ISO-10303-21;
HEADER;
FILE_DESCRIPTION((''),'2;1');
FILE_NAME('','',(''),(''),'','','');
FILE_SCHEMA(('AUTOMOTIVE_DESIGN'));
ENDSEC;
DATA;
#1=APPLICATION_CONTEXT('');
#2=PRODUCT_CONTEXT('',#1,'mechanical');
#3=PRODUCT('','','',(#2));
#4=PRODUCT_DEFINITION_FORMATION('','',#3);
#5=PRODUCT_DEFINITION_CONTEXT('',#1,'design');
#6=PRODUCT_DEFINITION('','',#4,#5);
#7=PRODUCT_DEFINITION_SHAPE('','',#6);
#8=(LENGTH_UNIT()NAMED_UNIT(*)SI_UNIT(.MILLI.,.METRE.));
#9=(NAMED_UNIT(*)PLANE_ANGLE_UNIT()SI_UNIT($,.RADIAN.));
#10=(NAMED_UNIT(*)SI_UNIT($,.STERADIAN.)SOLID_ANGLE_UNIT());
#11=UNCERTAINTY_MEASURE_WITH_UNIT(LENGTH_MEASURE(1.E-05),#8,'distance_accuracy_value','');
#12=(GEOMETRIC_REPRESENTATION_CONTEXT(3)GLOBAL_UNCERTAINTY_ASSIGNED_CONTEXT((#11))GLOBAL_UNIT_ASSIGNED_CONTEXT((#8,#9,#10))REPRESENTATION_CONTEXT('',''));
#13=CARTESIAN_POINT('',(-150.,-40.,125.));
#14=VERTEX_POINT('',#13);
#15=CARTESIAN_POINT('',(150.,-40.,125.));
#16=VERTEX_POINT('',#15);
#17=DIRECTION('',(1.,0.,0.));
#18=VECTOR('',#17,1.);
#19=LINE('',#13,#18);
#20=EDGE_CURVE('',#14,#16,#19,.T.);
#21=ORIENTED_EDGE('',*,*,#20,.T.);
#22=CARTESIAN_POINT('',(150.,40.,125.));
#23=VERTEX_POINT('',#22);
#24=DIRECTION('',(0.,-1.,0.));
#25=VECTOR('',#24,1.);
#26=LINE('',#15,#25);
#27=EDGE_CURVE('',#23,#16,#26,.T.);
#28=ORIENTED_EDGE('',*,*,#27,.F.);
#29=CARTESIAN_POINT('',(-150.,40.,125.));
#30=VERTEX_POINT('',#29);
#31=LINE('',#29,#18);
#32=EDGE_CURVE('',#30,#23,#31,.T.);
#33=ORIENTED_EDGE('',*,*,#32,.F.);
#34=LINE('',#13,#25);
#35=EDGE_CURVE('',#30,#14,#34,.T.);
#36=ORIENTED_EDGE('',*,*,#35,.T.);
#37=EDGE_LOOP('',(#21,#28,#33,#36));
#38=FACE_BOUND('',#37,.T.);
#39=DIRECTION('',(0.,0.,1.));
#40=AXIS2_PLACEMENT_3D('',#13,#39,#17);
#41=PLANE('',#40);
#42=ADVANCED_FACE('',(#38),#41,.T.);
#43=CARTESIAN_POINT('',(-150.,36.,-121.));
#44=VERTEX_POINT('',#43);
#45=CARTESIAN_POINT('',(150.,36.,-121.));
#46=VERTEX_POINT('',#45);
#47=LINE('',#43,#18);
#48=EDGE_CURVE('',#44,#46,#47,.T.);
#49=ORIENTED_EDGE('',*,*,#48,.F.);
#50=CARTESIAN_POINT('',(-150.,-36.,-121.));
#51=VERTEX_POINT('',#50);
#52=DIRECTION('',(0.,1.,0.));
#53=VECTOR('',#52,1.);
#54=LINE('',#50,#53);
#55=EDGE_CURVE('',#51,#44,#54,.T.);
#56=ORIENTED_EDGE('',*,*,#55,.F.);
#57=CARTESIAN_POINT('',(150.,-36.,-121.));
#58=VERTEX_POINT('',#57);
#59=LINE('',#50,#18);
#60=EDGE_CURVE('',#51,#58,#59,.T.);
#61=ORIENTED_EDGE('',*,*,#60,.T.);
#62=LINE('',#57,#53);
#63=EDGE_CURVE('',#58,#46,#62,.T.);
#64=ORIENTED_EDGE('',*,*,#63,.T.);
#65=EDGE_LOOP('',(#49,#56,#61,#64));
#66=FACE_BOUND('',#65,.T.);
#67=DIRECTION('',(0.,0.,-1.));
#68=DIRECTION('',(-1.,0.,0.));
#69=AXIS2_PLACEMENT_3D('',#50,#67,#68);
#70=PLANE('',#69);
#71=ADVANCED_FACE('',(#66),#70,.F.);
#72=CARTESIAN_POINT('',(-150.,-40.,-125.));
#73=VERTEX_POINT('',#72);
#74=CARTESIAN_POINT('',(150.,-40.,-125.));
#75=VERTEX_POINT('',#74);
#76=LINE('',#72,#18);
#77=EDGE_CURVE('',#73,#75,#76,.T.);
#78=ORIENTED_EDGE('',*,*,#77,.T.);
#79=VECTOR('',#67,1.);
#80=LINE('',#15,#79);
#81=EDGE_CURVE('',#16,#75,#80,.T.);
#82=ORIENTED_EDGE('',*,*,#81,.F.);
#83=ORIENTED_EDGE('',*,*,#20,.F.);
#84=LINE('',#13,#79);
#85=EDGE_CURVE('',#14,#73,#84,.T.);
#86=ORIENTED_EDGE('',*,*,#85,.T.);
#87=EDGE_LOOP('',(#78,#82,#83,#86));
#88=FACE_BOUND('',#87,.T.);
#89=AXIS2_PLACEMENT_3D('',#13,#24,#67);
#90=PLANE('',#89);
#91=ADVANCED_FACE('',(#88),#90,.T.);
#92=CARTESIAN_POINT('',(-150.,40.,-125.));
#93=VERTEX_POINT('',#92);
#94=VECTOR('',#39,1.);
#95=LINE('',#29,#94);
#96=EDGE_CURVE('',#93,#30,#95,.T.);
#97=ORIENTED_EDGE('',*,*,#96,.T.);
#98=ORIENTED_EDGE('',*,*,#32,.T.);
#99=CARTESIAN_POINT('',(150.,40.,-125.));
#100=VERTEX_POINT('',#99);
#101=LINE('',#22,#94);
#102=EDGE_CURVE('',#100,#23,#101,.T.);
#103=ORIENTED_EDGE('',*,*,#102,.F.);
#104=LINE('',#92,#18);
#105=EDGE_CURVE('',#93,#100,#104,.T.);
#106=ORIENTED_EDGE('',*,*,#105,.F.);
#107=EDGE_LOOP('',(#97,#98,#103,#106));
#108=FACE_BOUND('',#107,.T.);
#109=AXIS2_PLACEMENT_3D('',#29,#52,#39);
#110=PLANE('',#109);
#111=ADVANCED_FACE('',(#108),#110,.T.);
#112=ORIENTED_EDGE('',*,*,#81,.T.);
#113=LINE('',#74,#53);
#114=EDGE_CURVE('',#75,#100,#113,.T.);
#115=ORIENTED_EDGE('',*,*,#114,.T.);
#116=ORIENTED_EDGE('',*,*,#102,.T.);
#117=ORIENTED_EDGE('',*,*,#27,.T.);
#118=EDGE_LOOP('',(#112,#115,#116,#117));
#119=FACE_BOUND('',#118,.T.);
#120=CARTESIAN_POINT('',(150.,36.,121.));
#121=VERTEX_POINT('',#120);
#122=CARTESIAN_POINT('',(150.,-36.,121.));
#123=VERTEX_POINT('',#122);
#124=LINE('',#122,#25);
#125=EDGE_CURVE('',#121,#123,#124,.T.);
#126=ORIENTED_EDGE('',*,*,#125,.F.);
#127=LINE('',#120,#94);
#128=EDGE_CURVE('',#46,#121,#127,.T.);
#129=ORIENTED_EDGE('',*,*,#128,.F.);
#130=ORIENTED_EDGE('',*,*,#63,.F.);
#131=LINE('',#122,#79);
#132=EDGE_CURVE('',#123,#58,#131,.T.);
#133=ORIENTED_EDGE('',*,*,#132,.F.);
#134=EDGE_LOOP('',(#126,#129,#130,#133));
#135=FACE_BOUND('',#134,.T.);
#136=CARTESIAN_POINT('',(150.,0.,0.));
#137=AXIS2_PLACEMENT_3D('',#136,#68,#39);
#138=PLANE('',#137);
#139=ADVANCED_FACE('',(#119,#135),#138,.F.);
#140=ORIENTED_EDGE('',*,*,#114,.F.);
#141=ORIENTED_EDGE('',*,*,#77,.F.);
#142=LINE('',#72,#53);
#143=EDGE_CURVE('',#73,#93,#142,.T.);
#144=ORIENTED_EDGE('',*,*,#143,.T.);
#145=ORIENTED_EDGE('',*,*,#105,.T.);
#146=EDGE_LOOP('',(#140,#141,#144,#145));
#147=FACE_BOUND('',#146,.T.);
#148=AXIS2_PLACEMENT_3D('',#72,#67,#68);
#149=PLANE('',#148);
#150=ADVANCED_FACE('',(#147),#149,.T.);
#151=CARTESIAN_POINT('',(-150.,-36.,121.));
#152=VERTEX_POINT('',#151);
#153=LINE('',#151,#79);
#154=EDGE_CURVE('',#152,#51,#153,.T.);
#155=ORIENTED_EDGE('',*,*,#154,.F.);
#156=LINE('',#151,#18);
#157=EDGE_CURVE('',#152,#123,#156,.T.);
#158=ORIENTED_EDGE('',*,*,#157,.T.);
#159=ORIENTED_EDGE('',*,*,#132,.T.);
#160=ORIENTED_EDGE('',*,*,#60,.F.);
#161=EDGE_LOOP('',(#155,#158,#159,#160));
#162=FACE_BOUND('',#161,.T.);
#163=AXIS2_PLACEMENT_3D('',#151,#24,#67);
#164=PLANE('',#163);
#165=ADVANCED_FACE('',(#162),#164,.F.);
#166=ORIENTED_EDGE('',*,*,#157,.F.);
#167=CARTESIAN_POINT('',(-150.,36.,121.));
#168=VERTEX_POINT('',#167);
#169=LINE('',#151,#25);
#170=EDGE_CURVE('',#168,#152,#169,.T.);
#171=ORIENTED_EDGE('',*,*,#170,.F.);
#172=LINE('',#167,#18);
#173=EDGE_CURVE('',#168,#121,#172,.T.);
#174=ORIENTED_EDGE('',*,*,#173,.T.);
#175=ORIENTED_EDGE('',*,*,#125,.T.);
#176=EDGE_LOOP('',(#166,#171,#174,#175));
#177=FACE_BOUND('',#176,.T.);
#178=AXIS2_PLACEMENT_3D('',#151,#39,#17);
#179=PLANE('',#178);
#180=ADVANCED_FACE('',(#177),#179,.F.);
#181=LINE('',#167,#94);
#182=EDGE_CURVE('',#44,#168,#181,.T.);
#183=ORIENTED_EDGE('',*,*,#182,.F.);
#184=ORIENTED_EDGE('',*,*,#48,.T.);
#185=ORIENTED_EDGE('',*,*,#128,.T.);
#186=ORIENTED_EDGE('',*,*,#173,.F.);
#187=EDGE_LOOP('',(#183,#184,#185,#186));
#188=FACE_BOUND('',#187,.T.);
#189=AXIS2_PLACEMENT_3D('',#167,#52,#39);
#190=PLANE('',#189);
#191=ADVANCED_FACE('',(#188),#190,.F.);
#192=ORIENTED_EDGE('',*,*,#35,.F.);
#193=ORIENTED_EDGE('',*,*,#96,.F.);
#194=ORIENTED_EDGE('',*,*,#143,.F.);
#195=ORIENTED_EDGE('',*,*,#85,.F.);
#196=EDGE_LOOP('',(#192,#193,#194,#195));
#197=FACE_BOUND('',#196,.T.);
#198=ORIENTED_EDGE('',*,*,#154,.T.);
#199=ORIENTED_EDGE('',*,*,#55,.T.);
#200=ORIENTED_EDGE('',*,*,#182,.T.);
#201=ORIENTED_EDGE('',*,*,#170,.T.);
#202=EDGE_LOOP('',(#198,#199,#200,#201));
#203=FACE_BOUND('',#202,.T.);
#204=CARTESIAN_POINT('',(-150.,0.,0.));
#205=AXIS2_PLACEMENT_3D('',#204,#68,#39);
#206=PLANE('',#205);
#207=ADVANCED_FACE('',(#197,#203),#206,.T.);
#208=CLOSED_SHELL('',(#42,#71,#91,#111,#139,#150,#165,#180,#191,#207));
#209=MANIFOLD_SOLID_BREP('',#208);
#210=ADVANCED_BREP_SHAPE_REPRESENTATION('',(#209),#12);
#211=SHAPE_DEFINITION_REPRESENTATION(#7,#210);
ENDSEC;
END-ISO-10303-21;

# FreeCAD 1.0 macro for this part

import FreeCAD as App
import Part
import Sketcher

V = App.Vector


def add_polygon(sketch, points):
    """Adds a closed chain of lines whose ends are joined by coincident constraints."""
    first, n = sketch.GeometryCount, len(points)
    for a, b in zip(points, points[1:] + points[:1]):
        sketch.addGeometry(Part.LineSegment(App.Vector(*a, 0), App.Vector(*b, 0)), False)
    for i in range(n):
        sketch.addConstraint(Sketcher.Constraint("Coincident", first + i, 2, first + (i + 1) % n, 1))

doc = App.newDocument("Part")
body = doc.addObject("PartDesign::Body", "Body")

sketch1 = body.newObject("Sketcher::SketchObject", "Sketch")
sketch1.AttachmentSupport = (doc.getObject("YZ_Plane"), [""])
sketch1.MapMode = "FlatFace"
add_polygon(sketch1, [(40, 125), (-40, 125), (-40, -125), (40, -125)])
add_polygon(sketch1, [(-36, -121), (-36, 121), (36, 121), (36, -121)])
sketch1.addConstraint([
    Sketcher.Constraint("Horizontal", 0),
    Sketcher.Constraint("Vertical", 1),
    Sketcher.Constraint("Horizontal", 2),
    Sketcher.Constraint("Vertical", 3),
    Sketcher.Constraint("Vertical", 4),
    Sketcher.Constraint("Horizontal", 5),
    Sketcher.Constraint("Vertical", 6),
    Sketcher.Constraint("Horizontal", 7),
    Sketcher.Constraint("Symmetric", 0, 2, 2, 2, -1, 1),
    Sketcher.Constraint("Symmetric", 4, 2, 6, 2, -1, 1),
    Sketcher.Constraint("DistanceX", 0, 2, 0, 1, 80.0),
    Sketcher.Constraint("DistanceX", 5, 1, 5, 2, 72.0),
    Sketcher.Constraint("DistanceY", 1, 2, 1, 1, 250.0),
    Sketcher.Constraint("DistanceY", 4, 1, 4, 2, 242.0),
])
pad1 = body.newObject("PartDesign::Pad", "Pad")
pad1.Profile = sketch1
pad1.Type = "TwoLengths"
pad1.Length = 150
pad1.Length2 = 150

doc.recompute()
